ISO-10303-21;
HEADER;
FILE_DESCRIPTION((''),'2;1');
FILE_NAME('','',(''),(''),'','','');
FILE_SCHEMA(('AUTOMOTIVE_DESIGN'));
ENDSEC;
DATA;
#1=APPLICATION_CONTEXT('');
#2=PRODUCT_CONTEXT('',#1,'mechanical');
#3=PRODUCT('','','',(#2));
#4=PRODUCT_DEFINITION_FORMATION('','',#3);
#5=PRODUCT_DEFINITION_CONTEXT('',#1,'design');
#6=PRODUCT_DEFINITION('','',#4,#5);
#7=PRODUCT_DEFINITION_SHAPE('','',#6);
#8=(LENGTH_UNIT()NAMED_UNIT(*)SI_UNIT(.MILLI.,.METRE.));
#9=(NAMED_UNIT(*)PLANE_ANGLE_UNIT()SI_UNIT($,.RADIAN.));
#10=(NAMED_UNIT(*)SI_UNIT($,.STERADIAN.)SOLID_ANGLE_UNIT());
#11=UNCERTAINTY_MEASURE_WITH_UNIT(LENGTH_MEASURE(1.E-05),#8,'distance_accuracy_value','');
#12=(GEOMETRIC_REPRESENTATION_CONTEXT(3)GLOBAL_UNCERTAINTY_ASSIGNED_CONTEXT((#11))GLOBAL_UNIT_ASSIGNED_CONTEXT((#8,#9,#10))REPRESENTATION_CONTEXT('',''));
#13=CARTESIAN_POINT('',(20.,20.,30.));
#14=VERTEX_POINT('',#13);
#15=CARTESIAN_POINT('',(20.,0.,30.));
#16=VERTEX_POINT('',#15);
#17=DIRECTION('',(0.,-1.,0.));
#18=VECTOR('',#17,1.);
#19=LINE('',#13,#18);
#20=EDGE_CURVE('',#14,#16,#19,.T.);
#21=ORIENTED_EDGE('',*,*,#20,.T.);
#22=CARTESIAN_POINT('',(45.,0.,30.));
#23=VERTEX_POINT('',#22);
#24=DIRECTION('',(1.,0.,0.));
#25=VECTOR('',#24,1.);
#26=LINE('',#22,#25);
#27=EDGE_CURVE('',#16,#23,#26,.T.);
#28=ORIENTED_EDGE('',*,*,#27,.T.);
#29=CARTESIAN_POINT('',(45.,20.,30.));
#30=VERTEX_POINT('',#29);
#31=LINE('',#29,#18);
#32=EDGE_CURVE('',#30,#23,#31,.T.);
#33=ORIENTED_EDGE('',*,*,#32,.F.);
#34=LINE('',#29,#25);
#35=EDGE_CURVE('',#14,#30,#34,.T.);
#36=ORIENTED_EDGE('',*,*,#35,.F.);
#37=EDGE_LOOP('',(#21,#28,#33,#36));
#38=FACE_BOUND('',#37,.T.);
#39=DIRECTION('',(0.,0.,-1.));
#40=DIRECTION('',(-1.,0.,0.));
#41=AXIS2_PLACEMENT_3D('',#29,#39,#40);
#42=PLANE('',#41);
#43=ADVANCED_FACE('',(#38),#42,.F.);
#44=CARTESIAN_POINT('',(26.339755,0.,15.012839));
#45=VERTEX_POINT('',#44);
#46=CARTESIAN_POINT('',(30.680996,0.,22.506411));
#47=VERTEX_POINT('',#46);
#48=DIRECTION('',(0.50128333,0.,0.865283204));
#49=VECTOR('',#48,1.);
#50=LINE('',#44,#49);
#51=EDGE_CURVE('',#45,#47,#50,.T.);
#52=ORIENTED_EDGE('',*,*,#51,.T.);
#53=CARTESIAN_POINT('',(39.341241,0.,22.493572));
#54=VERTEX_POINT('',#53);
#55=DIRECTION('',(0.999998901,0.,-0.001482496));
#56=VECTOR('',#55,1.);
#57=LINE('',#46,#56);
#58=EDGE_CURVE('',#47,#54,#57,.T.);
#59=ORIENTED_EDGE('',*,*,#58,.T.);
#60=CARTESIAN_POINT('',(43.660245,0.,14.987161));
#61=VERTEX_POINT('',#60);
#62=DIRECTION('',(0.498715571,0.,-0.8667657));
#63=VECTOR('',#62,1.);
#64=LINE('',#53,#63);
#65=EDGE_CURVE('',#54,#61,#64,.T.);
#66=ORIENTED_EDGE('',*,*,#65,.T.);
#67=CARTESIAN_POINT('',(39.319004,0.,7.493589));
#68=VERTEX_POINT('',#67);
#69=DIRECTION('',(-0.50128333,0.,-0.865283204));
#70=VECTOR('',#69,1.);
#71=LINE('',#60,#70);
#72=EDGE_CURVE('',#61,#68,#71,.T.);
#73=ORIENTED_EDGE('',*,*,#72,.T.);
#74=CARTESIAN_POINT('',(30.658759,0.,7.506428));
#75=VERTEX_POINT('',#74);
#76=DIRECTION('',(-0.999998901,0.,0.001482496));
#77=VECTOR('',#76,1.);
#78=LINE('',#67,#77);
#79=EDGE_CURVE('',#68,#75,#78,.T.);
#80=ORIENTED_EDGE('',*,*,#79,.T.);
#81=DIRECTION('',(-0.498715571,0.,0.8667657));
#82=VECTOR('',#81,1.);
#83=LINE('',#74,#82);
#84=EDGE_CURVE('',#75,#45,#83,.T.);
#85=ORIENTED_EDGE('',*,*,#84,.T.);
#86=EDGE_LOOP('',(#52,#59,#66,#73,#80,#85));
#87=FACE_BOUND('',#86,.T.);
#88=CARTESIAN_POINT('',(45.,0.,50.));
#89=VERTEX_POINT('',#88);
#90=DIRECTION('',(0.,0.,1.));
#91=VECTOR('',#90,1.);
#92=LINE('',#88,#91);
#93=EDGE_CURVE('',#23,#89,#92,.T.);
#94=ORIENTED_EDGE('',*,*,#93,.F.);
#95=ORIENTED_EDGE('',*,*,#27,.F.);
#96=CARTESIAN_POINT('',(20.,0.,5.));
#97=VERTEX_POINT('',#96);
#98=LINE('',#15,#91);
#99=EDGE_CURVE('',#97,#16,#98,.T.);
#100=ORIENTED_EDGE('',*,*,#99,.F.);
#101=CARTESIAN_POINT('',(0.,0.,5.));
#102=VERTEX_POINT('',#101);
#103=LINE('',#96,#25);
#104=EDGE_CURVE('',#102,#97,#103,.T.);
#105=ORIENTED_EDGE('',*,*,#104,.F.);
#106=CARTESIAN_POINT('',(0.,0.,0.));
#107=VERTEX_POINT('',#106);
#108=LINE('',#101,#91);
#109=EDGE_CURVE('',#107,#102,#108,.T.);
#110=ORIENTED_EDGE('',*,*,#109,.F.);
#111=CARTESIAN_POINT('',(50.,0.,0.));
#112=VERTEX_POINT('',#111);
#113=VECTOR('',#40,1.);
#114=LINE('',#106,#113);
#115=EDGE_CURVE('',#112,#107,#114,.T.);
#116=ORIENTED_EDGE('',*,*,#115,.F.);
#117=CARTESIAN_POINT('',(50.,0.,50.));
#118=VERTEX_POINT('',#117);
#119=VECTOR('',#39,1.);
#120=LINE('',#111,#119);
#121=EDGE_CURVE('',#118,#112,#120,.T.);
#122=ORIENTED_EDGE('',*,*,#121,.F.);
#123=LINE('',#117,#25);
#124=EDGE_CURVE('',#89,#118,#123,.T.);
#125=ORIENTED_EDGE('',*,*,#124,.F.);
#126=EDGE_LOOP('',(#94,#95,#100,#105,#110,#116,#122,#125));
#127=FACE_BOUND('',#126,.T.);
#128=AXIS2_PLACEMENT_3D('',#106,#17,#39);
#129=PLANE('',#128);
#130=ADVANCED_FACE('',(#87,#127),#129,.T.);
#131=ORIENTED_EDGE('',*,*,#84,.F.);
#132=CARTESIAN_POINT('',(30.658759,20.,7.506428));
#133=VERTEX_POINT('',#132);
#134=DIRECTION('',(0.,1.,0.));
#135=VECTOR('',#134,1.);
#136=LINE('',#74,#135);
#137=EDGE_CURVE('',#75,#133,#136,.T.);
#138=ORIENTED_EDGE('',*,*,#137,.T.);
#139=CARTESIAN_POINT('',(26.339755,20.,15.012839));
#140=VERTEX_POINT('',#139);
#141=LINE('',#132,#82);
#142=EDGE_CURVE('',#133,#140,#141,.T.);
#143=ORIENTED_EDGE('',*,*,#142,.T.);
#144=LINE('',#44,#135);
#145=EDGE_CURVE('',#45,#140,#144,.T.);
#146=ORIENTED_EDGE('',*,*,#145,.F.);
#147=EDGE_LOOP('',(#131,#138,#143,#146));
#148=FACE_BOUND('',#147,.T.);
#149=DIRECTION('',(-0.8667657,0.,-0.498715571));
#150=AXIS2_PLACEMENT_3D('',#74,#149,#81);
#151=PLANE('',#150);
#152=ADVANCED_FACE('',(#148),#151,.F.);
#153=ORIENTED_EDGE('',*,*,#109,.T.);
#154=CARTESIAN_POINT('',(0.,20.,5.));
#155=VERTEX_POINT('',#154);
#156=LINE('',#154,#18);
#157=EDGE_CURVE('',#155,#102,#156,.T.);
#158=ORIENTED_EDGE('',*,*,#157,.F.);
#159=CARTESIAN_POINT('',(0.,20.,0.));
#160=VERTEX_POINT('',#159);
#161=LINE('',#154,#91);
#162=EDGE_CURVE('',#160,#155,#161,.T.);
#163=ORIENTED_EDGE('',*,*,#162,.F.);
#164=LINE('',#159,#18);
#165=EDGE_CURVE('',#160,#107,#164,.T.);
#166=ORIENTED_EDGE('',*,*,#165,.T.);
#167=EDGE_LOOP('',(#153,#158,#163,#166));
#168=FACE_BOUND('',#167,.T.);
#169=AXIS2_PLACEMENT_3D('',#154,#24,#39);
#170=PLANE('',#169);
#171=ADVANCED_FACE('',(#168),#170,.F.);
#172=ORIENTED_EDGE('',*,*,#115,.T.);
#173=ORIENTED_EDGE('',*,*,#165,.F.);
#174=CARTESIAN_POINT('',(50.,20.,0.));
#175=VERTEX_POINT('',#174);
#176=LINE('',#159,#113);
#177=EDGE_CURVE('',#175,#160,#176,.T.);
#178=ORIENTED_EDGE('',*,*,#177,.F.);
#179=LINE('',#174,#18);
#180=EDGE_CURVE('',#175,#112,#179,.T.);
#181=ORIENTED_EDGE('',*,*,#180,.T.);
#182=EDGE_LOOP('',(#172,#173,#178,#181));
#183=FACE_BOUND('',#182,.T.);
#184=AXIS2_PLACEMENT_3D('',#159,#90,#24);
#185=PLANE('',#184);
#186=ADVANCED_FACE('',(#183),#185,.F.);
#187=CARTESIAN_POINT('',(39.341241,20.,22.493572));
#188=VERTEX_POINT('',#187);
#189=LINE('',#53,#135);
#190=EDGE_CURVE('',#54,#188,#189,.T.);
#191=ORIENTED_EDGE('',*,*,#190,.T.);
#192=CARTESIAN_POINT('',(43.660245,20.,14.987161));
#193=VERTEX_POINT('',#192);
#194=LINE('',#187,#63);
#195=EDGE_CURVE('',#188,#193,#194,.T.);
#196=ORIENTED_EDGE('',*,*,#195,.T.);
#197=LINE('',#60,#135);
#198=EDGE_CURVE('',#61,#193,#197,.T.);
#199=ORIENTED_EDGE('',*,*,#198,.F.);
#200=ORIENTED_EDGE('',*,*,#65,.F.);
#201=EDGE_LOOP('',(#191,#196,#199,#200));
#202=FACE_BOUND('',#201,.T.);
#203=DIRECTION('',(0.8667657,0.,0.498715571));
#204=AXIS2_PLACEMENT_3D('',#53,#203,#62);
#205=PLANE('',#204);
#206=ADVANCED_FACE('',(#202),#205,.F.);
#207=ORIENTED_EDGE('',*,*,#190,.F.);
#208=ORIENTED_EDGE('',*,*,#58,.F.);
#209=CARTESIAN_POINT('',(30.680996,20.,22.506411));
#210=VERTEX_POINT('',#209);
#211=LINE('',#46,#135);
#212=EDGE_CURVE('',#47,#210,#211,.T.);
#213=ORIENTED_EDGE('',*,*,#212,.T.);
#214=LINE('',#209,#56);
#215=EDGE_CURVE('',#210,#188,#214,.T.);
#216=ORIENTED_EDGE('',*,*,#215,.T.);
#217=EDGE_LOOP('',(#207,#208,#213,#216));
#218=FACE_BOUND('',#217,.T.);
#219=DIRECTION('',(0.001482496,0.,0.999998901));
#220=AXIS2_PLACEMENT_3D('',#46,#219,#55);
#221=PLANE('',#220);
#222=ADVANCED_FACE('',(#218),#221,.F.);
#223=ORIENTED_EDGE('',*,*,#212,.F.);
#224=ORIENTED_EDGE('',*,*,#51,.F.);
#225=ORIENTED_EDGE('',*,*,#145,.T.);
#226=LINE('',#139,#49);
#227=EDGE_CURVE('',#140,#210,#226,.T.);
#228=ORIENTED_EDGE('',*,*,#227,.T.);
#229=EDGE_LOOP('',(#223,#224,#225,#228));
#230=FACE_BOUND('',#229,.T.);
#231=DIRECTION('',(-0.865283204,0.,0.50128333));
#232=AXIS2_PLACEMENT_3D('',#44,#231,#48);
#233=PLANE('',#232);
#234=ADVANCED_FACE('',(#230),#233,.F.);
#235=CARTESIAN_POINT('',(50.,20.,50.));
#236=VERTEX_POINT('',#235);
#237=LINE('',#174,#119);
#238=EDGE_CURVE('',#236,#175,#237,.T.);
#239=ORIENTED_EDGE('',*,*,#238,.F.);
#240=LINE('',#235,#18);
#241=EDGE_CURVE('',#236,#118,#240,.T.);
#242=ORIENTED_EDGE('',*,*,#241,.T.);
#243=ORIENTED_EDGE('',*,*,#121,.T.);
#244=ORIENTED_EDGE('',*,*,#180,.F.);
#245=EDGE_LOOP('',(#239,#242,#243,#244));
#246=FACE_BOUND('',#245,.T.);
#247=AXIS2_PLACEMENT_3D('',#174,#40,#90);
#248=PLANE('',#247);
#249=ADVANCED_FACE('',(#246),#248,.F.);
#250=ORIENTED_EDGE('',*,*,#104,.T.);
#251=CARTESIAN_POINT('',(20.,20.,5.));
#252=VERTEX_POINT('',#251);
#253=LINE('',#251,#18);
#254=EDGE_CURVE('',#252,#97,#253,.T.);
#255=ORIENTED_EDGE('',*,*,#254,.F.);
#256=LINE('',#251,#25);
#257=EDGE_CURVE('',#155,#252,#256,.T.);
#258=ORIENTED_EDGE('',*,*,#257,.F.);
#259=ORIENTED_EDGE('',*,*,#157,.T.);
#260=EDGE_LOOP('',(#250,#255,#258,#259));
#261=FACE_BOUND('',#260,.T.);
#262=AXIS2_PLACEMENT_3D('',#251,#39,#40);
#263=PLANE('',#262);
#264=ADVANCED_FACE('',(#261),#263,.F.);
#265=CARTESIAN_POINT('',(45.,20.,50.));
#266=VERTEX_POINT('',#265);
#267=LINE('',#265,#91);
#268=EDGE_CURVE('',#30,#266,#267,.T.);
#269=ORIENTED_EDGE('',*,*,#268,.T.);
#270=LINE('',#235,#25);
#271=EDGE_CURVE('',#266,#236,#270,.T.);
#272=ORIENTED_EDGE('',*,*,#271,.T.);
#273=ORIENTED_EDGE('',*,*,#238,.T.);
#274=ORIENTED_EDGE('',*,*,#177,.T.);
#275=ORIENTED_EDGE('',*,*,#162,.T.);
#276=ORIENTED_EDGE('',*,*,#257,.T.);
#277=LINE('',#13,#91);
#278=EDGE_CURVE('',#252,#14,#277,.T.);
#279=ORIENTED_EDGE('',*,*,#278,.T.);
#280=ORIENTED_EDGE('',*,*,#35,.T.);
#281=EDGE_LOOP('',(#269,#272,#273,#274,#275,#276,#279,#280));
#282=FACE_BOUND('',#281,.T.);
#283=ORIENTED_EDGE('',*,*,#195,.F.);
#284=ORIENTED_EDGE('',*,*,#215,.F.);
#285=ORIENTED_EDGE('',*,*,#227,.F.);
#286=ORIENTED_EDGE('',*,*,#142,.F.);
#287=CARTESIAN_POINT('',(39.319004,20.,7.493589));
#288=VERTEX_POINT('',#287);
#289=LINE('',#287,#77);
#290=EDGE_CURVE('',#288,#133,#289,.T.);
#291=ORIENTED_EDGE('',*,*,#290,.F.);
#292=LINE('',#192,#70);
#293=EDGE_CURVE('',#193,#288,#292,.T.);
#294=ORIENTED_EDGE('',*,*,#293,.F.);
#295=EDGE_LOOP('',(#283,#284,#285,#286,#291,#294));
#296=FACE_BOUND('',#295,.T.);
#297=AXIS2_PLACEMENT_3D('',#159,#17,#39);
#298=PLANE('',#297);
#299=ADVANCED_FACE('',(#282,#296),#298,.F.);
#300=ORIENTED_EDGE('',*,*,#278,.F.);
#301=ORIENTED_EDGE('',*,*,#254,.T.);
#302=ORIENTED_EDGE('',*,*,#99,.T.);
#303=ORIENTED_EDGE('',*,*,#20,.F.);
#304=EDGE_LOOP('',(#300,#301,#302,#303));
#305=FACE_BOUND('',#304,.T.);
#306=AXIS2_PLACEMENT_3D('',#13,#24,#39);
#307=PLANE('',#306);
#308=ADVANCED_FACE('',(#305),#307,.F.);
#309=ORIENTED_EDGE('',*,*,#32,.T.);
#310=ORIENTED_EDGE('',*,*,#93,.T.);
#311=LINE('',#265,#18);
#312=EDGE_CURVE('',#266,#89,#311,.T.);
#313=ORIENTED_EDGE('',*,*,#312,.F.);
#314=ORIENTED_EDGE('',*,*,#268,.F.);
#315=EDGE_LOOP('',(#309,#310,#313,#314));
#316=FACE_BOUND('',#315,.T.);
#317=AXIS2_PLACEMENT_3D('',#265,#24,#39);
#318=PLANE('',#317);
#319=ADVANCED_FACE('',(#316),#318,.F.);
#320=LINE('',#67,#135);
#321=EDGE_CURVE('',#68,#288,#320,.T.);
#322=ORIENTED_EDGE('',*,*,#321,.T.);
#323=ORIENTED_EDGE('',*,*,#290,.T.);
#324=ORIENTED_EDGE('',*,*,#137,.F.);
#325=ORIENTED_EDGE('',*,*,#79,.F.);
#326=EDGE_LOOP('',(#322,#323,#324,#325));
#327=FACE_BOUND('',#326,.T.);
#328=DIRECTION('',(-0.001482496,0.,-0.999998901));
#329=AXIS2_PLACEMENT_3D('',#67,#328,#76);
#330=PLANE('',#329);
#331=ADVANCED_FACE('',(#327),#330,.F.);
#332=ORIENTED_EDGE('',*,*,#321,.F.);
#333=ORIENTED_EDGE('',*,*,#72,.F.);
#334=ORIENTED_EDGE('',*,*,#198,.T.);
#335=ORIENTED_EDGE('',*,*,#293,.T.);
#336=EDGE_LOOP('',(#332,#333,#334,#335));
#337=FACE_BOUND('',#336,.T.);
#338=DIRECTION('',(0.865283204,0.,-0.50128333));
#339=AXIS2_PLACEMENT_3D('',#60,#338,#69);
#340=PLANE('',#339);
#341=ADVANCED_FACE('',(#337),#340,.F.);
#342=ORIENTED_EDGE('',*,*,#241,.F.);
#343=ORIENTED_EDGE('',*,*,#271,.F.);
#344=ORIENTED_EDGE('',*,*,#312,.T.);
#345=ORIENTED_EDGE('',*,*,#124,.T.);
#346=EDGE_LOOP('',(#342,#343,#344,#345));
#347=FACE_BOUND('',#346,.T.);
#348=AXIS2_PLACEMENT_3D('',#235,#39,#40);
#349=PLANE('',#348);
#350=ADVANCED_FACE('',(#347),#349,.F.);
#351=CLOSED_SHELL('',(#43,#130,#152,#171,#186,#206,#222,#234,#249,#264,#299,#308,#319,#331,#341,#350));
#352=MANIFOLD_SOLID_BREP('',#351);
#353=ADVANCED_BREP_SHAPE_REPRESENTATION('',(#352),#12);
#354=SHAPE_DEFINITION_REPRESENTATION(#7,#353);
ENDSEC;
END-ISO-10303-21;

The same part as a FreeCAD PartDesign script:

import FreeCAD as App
import Part
import Sketcher
Q = App.Units.Quantity


def add_polygon(sketch, points):
    """Adds a closed chain of lines whose ends are joined by coincident constraints."""
    first, n = sketch.GeometryCount, len(points)
    for a, b in zip(points, points[1:] + points[:1]):
        sketch.addGeometry(Part.LineSegment(App.Vector(*a, 0), App.Vector(*b, 0)), False)
    for i in range(n):
        sketch.addConstraint(Sketcher.Constraint("Coincident", first + i, 2, first + (i + 1) % n, 1))

doc = App.newDocument("Part")
body = doc.addObject("PartDesign::Body", "Body")

# Sketch on XZ plane
sketch1 = body.newObject("Sketcher::SketchObject", "Sketch")
sketch1.AttachmentSupport = (doc.getObject("XZ_Plane"), [""])
sketch1.MapMode = "FlatFace"
add_polygon(sketch1, [(50, 0), (0, 0), (0, 5), (20, 5), (20, 30), (45, 30), (45, 50), (50, 50)])  # lines 0-7
sketch1.addConstraint(Sketcher.Constraint("Horizontal", 0))
sketch1.addConstraint(Sketcher.Constraint("Vertical", 1))
sketch1.addConstraint(Sketcher.Constraint("Horizontal", 2))
sketch1.addConstraint(Sketcher.Constraint("Vertical", 3))
sketch1.addConstraint(Sketcher.Constraint("Horizontal", 4))
sketch1.addConstraint(Sketcher.Constraint("Vertical", 5))
sketch1.addConstraint(Sketcher.Constraint("Horizontal", 6))
sketch1.addConstraint(Sketcher.Constraint("Vertical", 7))
sketch1.addConstraint(Sketcher.Constraint("Coincident", 0, 2, -1, 1))
sketch1.addConstraint(Sketcher.Constraint("Equal", 6, 1))
sketch1.addConstraint(Sketcher.Constraint("Equal", 4, 3))
sketch1.addConstraint(Sketcher.Constraint("Equal", 2, 5))
sketch1.addConstraint(Sketcher.Constraint("DistanceX", 0, 2, 0, 1, Q("50 mm")))
sketch1.addConstraint(Sketcher.Constraint("DistanceX", 2, 1, 2, 2, Q("20 mm")))
sketch1.addConstraint(Sketcher.Constraint("DistanceX", 4, 1, 4, 2, Q("25 mm")))
pad1 = body.newObject("PartDesign::Pad", "Pad")
pad1.Profile = sketch1
pad1.Length = 20
pad1.Reversed = True

# Sketch on XZ plane
sketch2 = body.newObject("Sketcher::SketchObject", "Sketch001")
sketch2.AttachmentSupport = (doc.getObject("XZ_Plane"), [""])
sketch2.MapMode = "FlatFace"
sketch2.AttachmentOffset = App.Placement(App.Vector(0, 0, -20), App.Rotation())
add_polygon(sketch2, [(39.341241, 22.493572), (43.660245, 14.987161), (39.319004, 7.493589), (30.658759, 7.506428), (26.339755, 15.012839), (30.680996, 22.506411)])  # lines 0-5
sketch2.addConstraint(Sketcher.Constraint("Parallel", 0, 3))
sketch2.addConstraint(Sketcher.Constraint("Parallel", 1, 4))
sketch2.addConstraint(Sketcher.Constraint("Parallel", 2, 5))
sketch2.addConstraint(Sketcher.Constraint("Equal", 0, 1))
sketch2.addConstraint(Sketcher.Constraint("Equal", 1, 2))
sketch2.addConstraint(Sketcher.Constraint("Equal", 2, 3))
sketch2.addConstraint(Sketcher.Constraint("DistanceY", -1, 1, 0, 2, Q("14.987161 mm")))
sketch2.addConstraint(Sketcher.Constraint("DistanceY", -1, 1, 1, 2, Q("7.493589 mm")))
sketch2.addConstraint(Sketcher.Constraint("DistanceX", -1, 1, 2, 2, Q("30.658759 mm")))
sketch2.addConstraint(Sketcher.Constraint("DistanceY", -1, 1, 3, 2, Q("15.012839 mm")))
sketch2.addConstraint(Sketcher.Constraint("DistanceX", -1, 1, 5, 2, Q("39.341241 mm")))
sketch2.addConstraint(Sketcher.Constraint("DistanceX", 1, 2, 0, 2, Q("4.341241 mm")))
pocket1 = body.newObject("PartDesign::Pocket", "Pocket")
pocket1.Profile = sketch2
pocket1.Length = 20
pocket1.Reversed = True

doc.recompute()
